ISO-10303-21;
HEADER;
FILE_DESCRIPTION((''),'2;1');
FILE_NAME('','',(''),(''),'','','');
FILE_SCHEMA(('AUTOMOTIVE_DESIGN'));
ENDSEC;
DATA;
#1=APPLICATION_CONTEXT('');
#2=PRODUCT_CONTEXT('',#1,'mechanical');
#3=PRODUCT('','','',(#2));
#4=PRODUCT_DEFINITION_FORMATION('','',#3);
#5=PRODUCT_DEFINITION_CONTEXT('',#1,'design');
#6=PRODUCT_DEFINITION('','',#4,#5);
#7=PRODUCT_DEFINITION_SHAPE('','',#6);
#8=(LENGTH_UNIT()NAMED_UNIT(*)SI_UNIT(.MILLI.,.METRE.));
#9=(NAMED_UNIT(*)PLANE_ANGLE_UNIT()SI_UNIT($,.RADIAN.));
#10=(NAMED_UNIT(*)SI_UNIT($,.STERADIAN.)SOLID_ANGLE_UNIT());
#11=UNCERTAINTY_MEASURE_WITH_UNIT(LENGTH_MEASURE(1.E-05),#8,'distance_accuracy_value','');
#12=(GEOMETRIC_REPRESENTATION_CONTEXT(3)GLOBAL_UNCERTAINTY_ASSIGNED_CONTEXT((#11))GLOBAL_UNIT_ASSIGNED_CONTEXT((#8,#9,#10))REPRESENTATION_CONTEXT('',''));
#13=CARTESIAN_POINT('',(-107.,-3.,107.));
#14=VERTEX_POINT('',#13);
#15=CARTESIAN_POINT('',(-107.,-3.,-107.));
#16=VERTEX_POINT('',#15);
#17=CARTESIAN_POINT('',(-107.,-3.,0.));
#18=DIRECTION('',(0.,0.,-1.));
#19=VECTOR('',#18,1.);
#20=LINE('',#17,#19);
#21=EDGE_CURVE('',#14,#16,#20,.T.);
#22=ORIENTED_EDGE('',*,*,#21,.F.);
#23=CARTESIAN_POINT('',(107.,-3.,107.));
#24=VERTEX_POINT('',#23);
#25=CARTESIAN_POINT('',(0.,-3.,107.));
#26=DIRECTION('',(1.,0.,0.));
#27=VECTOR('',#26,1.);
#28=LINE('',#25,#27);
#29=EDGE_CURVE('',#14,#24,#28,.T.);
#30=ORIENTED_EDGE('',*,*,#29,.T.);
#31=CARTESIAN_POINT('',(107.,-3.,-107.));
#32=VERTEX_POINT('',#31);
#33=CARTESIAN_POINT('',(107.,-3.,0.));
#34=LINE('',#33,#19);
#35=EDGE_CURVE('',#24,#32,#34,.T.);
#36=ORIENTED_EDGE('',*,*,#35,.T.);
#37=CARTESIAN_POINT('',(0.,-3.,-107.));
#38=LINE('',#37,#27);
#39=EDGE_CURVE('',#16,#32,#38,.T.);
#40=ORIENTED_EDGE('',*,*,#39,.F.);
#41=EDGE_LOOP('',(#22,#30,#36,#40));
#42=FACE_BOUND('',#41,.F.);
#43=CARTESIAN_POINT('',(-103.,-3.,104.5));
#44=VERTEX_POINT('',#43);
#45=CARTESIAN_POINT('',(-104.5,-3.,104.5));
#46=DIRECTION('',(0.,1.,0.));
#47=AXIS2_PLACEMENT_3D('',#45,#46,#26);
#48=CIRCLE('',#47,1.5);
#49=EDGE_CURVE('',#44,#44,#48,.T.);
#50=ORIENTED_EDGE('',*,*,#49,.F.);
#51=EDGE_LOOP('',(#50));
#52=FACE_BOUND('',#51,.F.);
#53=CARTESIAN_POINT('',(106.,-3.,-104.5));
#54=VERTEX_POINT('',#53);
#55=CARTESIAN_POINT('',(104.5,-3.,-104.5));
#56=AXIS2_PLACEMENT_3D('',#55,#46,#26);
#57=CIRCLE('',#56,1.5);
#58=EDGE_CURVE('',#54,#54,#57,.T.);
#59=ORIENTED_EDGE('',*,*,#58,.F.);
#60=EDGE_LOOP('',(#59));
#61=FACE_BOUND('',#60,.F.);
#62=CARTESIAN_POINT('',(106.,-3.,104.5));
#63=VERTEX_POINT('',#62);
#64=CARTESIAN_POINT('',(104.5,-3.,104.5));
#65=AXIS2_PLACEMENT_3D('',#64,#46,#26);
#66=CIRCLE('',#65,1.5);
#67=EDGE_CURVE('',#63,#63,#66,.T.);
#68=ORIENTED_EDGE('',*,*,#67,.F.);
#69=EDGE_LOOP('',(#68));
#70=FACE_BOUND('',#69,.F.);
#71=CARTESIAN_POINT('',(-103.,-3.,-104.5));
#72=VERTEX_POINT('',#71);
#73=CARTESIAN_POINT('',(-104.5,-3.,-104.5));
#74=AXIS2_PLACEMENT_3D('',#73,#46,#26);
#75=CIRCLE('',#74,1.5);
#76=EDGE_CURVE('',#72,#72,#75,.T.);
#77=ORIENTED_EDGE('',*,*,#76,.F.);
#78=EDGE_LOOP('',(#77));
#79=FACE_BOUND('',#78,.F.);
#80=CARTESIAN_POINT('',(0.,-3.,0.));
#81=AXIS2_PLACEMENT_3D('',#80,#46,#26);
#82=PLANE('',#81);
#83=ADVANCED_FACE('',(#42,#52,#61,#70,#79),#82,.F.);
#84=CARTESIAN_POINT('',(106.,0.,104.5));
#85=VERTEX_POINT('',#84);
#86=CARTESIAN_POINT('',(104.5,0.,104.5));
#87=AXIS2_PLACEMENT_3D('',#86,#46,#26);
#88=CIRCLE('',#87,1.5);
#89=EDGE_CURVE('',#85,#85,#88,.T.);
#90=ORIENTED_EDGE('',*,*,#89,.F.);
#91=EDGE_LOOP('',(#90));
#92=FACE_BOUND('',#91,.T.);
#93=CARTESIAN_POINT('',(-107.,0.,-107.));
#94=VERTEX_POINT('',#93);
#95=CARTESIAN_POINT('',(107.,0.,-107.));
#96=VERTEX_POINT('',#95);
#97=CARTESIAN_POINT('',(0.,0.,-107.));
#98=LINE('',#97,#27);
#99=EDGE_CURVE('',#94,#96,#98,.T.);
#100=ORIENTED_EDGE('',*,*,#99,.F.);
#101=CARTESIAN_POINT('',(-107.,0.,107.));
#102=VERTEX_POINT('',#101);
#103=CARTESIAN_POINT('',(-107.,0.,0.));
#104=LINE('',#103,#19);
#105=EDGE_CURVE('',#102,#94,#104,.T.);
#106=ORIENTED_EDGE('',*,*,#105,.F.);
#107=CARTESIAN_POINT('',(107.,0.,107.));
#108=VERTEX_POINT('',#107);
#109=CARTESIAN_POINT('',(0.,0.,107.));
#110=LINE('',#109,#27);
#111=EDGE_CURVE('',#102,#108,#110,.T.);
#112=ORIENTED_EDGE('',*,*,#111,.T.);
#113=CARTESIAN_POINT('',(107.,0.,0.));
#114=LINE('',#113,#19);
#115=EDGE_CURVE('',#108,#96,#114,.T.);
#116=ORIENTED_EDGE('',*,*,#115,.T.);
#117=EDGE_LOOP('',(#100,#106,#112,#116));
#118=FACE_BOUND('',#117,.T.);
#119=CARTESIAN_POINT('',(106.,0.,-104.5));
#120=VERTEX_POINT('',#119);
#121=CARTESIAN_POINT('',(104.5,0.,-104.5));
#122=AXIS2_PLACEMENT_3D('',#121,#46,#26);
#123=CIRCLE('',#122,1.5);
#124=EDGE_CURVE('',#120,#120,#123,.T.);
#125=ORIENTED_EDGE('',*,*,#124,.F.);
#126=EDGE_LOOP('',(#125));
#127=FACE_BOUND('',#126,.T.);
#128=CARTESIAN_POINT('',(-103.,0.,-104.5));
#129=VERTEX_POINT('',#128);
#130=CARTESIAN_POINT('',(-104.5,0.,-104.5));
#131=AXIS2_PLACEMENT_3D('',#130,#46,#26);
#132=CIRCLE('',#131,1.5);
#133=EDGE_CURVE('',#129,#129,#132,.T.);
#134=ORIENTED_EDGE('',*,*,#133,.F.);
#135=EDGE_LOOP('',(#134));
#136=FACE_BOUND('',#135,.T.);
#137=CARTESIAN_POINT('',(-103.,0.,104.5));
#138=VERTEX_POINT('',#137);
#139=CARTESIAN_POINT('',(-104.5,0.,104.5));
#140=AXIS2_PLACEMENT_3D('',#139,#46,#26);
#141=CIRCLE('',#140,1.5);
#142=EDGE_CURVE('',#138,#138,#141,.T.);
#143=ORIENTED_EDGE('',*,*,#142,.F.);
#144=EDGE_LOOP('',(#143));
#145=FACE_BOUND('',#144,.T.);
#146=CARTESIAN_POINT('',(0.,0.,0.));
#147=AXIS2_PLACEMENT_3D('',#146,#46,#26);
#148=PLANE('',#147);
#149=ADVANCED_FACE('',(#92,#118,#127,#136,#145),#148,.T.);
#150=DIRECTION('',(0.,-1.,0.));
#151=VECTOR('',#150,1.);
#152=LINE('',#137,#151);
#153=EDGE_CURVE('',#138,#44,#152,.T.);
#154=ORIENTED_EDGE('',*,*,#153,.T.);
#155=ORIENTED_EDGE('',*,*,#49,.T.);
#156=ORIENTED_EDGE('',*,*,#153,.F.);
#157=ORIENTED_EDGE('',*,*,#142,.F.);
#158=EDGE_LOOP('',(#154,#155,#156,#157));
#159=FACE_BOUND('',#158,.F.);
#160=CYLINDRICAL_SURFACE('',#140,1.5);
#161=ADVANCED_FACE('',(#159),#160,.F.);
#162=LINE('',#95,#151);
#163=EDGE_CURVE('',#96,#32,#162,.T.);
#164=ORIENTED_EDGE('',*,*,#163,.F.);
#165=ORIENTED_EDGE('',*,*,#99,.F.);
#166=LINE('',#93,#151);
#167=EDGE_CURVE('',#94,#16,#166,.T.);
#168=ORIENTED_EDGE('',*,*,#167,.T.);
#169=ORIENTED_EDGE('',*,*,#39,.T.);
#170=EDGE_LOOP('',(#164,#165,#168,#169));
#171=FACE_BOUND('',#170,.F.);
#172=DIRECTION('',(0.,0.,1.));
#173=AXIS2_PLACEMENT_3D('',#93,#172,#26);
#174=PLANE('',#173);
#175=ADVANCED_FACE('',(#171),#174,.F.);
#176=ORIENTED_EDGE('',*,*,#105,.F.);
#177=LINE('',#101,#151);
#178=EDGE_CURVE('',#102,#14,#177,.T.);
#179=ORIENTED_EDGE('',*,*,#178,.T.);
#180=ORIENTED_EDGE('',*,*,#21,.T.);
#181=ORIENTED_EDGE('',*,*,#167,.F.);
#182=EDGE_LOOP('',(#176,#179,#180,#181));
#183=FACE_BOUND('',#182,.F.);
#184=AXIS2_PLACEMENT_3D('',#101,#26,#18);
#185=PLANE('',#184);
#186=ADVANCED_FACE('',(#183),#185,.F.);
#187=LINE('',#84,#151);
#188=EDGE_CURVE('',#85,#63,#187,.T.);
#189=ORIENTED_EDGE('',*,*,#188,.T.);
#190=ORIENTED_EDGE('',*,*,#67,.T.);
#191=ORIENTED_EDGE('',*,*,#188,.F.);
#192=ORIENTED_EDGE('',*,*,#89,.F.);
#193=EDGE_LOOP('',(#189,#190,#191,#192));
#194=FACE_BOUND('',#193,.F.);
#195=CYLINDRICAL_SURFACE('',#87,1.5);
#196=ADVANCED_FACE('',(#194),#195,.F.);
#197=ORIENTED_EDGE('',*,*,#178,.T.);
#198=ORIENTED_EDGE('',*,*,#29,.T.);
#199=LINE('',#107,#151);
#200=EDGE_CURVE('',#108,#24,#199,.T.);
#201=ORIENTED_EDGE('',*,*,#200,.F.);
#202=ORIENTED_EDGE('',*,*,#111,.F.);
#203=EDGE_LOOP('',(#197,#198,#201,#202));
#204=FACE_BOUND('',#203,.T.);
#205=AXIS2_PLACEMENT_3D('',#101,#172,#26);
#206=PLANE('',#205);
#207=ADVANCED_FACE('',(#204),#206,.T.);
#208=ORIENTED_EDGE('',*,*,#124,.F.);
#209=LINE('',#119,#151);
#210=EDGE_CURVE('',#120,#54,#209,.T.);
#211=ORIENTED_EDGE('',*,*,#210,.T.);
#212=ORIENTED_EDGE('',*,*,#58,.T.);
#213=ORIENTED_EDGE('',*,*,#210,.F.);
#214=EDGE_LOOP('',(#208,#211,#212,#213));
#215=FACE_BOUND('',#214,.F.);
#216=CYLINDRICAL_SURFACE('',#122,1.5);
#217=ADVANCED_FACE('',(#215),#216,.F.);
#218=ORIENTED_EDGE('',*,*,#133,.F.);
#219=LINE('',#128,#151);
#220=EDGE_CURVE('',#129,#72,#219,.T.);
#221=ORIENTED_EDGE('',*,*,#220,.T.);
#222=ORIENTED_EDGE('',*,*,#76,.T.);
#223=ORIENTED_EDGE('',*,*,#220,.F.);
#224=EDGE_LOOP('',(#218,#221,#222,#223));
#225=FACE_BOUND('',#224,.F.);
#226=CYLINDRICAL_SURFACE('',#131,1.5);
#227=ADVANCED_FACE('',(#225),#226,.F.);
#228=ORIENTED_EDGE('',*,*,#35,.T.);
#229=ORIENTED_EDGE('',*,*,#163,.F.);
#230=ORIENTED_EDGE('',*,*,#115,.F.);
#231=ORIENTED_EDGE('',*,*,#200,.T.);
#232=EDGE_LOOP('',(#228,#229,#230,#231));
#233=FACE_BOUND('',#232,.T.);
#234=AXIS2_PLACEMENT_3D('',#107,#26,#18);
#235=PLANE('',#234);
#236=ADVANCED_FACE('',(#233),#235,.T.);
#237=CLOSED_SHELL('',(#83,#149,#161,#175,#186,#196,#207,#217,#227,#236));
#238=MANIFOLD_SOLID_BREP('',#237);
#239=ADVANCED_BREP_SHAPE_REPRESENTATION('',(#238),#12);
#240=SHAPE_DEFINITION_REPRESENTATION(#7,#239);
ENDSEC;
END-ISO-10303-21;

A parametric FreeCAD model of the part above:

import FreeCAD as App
import Part
import Sketcher
from FreeCAD import Vector

doc = App.newDocument("Part")
params = doc.addObject("Spreadsheet::Sheet", "Params")
for row, (alias, value) in enumerate([
    ("sketch1_diameter", "3 mm"),
    ("sketch1_width", "214 mm"),
    ("pad1_length", "3 mm"),
], start=1):
    params.set(f"A{row}", alias)
    params.set(f"B{row}", "=" + value)
    params.setAlias(f"B{row}", alias)

body = doc.addObject("PartDesign::Body", "Body")

# Sketch on XZ plane
sketch1 = body.newObject("Sketcher::SketchObject", "Sketch")
sketch1.AttachmentSupport = (doc.getObject("XZ_Plane"), [""])
sketch1.MapMode = "FlatFace"
sketch1.addGeometry(Part.LineSegment(Vector(-107, -107, 0), Vector(-107, 107, 0)), False)
sketch1.addGeometry(Part.LineSegment(Vector(-107, 107, 0), Vector(107, 107, 0)), False)
sketch1.addGeometry(Part.LineSegment(Vector(107, 107, 0), Vector(107, -107, 0)), False)
sketch1.addGeometry(Part.LineSegment(Vector(107, -107, 0), Vector(-107, -107, 0)), False)
sketch1.addGeometry(Part.Circle(Vector(-104.5, 104.5, 0), Vector(0, 0, 1), 1.5), False)
sketch1.addGeometry(Part.Circle(Vector(104.5, 104.5, 0), Vector(0, 0, 1), 1.5), False)
sketch1.addGeometry(Part.Circle(Vector(-104.5, -104.5, 0), Vector(0, 0, 1), 1.5), False)
sketch1.addGeometry(Part.Circle(Vector(104.5, -104.5, 0), Vector(0, 0, 1), 1.5), False)
sketch1.addConstraint(Sketcher.Constraint("Coincident", 0, 2, 1, 1))
sketch1.addConstraint(Sketcher.Constraint("Coincident", 1, 2, 2, 1))
sketch1.addConstraint(Sketcher.Constraint("Coincident", 2, 2, 3, 1))
sketch1.addConstraint(Sketcher.Constraint("Coincident", 3, 2, 0, 1))
sketch1.addConstraint(Sketcher.Constraint("Vertical", 0))
sketch1.addConstraint(Sketcher.Constraint("Horizontal", 1))
sketch1.addConstraint(Sketcher.Constraint("Vertical", 2))
sketch1.addConstraint(Sketcher.Constraint("Horizontal", 3))
sketch1.addConstraint(Sketcher.Constraint("Equal", 4, 5))
sketch1.addConstraint(Sketcher.Constraint("Equal", 5, 6))
sketch1.addConstraint(Sketcher.Constraint("Equal", 6, 7))
sketch1.addConstraint(Sketcher.Constraint("Symmetric", 5, 3, 6, 3, -1, 1))
sketch1.addConstraint(Sketcher.Constraint("Symmetric", 4, 3, 7, 3, -1, 1))
sketch1.addConstraint(Sketcher.Constraint("Symmetric", 0, 2, 2, 2, -1, 1))
sketch1.addConstraint(Sketcher.Constraint("Symmetric", 4, 3, 5, 3, -2))
sketch1.addConstraint(Sketcher.Constraint("Equal", 3, 0))
sketch1.addConstraint(Sketcher.Constraint("Diameter", 4, 3.0))
sketch1.addConstraint(Sketcher.Constraint("DistanceX", 1, 1, 1, 2, 214.0))
sketch1.addConstraint(Sketcher.Constraint("DistanceX", 4, 3, 5, 3, 209.0))
sketch1.addConstraint(Sketcher.Constraint("DistanceY", 6, 3, 4, 3, 209.0))
sketch1.setExpression("Constraints[16]", "Params.sketch1_diameter")
sketch1.setExpression("Constraints[17]", "Params.sketch1_width")
pad1 = body.newObject("PartDesign::Pad", "Pad")
pad1.Profile = sketch1
pad1.setExpression("Length", "Params.pad1_length")

doc.recompute()
